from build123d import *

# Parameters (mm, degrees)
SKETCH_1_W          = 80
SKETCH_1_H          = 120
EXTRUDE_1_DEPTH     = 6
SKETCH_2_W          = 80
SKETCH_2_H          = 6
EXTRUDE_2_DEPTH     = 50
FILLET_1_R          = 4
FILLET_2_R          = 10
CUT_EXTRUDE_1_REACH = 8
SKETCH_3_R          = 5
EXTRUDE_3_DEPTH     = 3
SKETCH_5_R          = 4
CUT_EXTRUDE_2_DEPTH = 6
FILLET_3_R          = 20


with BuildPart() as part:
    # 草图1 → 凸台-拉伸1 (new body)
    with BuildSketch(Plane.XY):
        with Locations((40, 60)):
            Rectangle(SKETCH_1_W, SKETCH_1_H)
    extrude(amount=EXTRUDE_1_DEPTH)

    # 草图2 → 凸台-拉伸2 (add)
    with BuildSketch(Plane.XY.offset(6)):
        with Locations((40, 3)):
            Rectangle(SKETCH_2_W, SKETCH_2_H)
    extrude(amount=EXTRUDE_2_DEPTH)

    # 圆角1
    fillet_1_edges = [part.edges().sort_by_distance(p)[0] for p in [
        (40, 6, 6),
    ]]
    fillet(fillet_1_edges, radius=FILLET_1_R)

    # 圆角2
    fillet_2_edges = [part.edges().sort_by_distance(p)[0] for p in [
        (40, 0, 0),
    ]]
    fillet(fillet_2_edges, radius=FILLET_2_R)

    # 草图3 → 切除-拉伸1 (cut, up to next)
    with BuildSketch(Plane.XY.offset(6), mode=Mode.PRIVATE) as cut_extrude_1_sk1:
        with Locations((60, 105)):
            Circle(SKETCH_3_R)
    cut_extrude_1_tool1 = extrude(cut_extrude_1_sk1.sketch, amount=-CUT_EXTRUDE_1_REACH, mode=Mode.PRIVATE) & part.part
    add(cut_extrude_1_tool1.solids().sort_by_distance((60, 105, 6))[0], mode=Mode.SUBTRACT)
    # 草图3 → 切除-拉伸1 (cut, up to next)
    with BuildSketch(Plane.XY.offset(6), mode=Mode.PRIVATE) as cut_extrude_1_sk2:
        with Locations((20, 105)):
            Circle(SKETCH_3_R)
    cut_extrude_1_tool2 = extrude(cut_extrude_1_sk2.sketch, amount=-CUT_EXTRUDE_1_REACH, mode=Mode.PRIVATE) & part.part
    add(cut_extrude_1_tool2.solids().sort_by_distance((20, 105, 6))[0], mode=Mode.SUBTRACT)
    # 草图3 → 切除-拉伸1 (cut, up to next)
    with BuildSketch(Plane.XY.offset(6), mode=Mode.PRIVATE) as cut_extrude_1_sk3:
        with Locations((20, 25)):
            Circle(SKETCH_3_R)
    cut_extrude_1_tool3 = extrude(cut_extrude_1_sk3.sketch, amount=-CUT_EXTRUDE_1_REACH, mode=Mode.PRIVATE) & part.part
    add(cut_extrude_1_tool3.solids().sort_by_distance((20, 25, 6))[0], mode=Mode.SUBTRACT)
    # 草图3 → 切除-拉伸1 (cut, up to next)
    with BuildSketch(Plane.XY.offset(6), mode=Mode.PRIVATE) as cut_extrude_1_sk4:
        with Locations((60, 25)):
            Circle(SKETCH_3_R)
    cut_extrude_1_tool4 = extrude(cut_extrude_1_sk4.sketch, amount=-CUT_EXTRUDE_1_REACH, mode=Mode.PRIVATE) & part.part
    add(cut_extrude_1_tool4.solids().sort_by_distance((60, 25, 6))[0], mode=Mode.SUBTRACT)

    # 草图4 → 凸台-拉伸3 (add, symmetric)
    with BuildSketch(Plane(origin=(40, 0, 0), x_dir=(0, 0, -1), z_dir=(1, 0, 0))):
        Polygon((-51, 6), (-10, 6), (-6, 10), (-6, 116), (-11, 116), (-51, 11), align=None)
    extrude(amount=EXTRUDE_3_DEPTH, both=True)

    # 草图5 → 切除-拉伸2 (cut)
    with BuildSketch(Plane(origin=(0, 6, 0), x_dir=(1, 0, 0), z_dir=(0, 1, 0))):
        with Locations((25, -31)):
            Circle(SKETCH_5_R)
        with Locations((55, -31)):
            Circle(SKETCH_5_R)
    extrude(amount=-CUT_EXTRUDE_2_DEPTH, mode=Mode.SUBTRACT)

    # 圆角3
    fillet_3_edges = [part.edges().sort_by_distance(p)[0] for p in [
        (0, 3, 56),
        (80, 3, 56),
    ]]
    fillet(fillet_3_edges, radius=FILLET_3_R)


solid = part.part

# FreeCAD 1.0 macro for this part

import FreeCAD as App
import Part
import Sketcher
from FreeCAD import Vector
Q = App.Units.Quantity


def edges_at(feature, points):
    """Names of the edges that pass closest to the given points."""
    edges = feature.Shape.Edges
    near = lambda p: min(range(len(edges)), key=lambda i: edges[i].distToShape(Part.Vertex(*p))[0])
    return sorted({f"Edge{near(p) + 1}" for p in points})

doc = App.newDocument("Part")
body = doc.addObject("PartDesign::Body", "Body")

sketch1 = doc.addObject("Sketcher::SketchObject", "Sketch")
body.addObject(sketch1)
sketch1.AttachmentSupport = (doc.XY_Plane, [""])
sketch1.MapMode = "FlatFace"
sketch1.addGeometry(Part.LineSegment(Vector(0, 120, 0), Vector(0, 0, 0)), False)
sketch1.addGeometry(Part.LineSegment(Vector(0, 0, 0), Vector(80, 0, 0)), False)
sketch1.addGeometry(Part.LineSegment(Vector(80, 0, 0), Vector(80, 120, 0)), False)
sketch1.addGeometry(Part.LineSegment(Vector(80, 120, 0), Vector(0, 120, 0)), False)
sketch1.addConstraint(Sketcher.Constraint("Coincident", 0, 2, 1, 1))
sketch1.addConstraint(Sketcher.Constraint("Coincident", 1, 2, 2, 1))
sketch1.addConstraint(Sketcher.Constraint("Coincident", 2, 2, 3, 1))
sketch1.addConstraint(Sketcher.Constraint("Coincident", 3, 2, 0, 1))
sketch1.addConstraint(Sketcher.Constraint("Vertical", 0))
sketch1.addConstraint(Sketcher.Constraint("Horizontal", 1))
sketch1.addConstraint(Sketcher.Constraint("Vertical", 2))
sketch1.addConstraint(Sketcher.Constraint("Horizontal", 3))
sketch1.addConstraint(Sketcher.Constraint("Coincident", 0, 2, -1, 1))
sketch1.addConstraint(Sketcher.Constraint("DistanceX", 1, 1, 1, 2, Q("80 mm")))
sketch1.addConstraint(Sketcher.Constraint("DistanceY", 0, 2, 0, 1, Q("120 mm")))
pad1 = doc.addObject("PartDesign::Pad", "Pad")
body.addObject(pad1)
pad1.Profile = sketch1
pad1.Length = 6

sketch2 = doc.addObject("Sketcher::SketchObject", "Sketch001")
body.addObject(sketch2)
sketch2.AttachmentSupport = (doc.XY_Plane, [""])
sketch2.MapMode = "FlatFace"
sketch2.AttachmentOffset = App.Placement(Vector(0, 0, 6), App.Rotation())
sketch2.addGeometry(Part.LineSegment(Vector(0, 6, 0), Vector(0, 0, 0)), False)
sketch2.addGeometry(Part.LineSegment(Vector(0, 0, 0), Vector(80, 0, 0)), False)
sketch2.addGeometry(Part.LineSegment(Vector(80, 0, 0), Vector(80, 6, 0)), False)
sketch2.addGeometry(Part.LineSegment(Vector(80, 6, 0), Vector(0, 6, 0)), False)
sketch2.addConstraint(Sketcher.Constraint("Coincident", 0, 2, 1, 1))
sketch2.addConstraint(Sketcher.Constraint("Coincident", 1, 2, 2, 1))
sketch2.addConstraint(Sketcher.Constraint("Coincident", 2, 2, 3, 1))
sketch2.addConstraint(Sketcher.Constraint("Coincident", 3, 2, 0, 1))
sketch2.addConstraint(Sketcher.Constraint("Vertical", 0))
sketch2.addConstraint(Sketcher.Constraint("Horizontal", 1))
sketch2.addConstraint(Sketcher.Constraint("Vertical", 2))
sketch2.addConstraint(Sketcher.Constraint("Horizontal", 3))
sketch2.addConstraint(Sketcher.Constraint("Coincident", 0, 2, -1, 1))
sketch2.addConstraint(Sketcher.Constraint("DistanceX", 1, 1, 1, 2, Q("80 mm")))
sketch2.addConstraint(Sketcher.Constraint("DistanceY", 0, 2, 0, 1, Q("6 mm")))
pad2 = doc.addObject("PartDesign::Pad", "Pad001")
body.addObject(pad2)
pad2.Profile = sketch2
pad2.Length = 50
doc.recompute()

fillet = doc.addObject("PartDesign::Fillet", "Fillet")
body.addObject(fillet)
fillet.Base = (pad2, edges_at(pad2, [(40, 6, 6)]))
fillet.Radius = 4
doc.recompute()

fillet2 = doc.addObject("PartDesign::Fillet", "Fillet001")
body.addObject(fillet2)
fillet2.Base = (fillet, edges_at(fillet, [(40, 0, 0)]))
fillet2.Radius = 10

sketch3 = doc.addObject("Sketcher::SketchObject", "Sketch002")
body.addObject(sketch3)
sketch3.AttachmentSupport = (doc.XY_Plane, [""])
sketch3.MapMode = "FlatFace"
sketch3.AttachmentOffset = App.Placement(Vector(0, 0, 6), App.Rotation())
sketch3.addGeometry(Part.Circle(Vector(60, 105, 0), Vector(0, 0, 1), 5), False)
sketch3.addConstraint(Sketcher.Constraint("Diameter", 0, Q("10 mm")))
sketch3.addConstraint(Sketcher.Constraint("DistanceX", -1, 1, 0, 3, Q("60 mm")))
sketch3.addConstraint(Sketcher.Constraint("DistanceY", -1, 1, 0, 3, Q("105 mm")))
pocket1 = doc.addObject("PartDesign::Pocket", "Pocket")
body.addObject(pocket1)
pocket1.Profile = sketch3
pocket1.Type = "UpToFirst"

sketch4 = doc.addObject("Sketcher::SketchObject", "Sketch003")
body.addObject(sketch4)
sketch4.AttachmentSupport = (doc.XY_Plane, [""])
sketch4.MapMode = "FlatFace"
sketch4.AttachmentOffset = App.Placement(Vector(0, 0, 6), App.Rotation())
sketch4.addGeometry(Part.Circle(Vector(20, 105, 0), Vector(0, 0, 1), 5), False)
sketch4.addConstraint(Sketcher.Constraint("Diameter", 0, Q("10 mm")))
sketch4.addConstraint(Sketcher.Constraint("DistanceX", -1, 1, 0, 3, Q("20 mm")))
sketch4.addConstraint(Sketcher.Constraint("DistanceY", -1, 1, 0, 3, Q("105 mm")))
pocket2 = doc.addObject("PartDesign::Pocket", "Pocket001")
body.addObject(pocket2)
pocket2.Profile = sketch4
pocket2.Type = "UpToFirst"

sketch5 = doc.addObject("Sketcher::SketchObject", "Sketch004")
body.addObject(sketch5)
sketch5.AttachmentSupport = (doc.XY_Plane, [""])
sketch5.MapMode = "FlatFace"
sketch5.AttachmentOffset = App.Placement(Vector(0, 0, 6), App.Rotation())
sketch5.addGeometry(Part.Circle(Vector(20, 25, 0), Vector(0, 0, 1), 5), False)
sketch5.addConstraint(Sketcher.Constraint("Diameter", 0, Q("10 mm")))
sketch5.addConstraint(Sketcher.Constraint("DistanceX", -1, 1, 0, 3, Q("20 mm")))
sketch5.addConstraint(Sketcher.Constraint("DistanceY", -1, 1, 0, 3, Q("25 mm")))
pocket3 = doc.addObject("PartDesign::Pocket", "Pocket002")
body.addObject(pocket3)
pocket3.Profile = sketch5
pocket3.Type = "UpToFirst"

sketch6 = doc.addObject("Sketcher::SketchObject", "Sketch005")
body.addObject(sketch6)
sketch6.AttachmentSupport = (doc.XY_Plane, [""])
sketch6.MapMode = "FlatFace"
sketch6.AttachmentOffset = App.Placement(Vector(0, 0, 6), App.Rotation())
sketch6.addGeometry(Part.Circle(Vector(60, 25, 0), Vector(0, 0, 1), 5), False)
sketch6.addConstraint(Sketcher.Constraint("Diameter", 0, Q("10 mm")))
sketch6.addConstraint(Sketcher.Constraint("DistanceX", -1, 1, 0, 3, Q("60 mm")))
sketch6.addConstraint(Sketcher.Constraint("DistanceY", -1, 1, 0, 3, Q("25 mm")))
pocket4 = doc.addObject("PartDesign::Pocket", "Pocket003")
body.addObject(pocket4)
pocket4.Profile = sketch6
pocket4.Type = "UpToFirst"

sketch7 = doc.addObject("Sketcher::SketchObject", "Sketch006")
body.addObject(sketch7)
sketch7.AttachmentSupport = (doc.YZ_Plane, [""])
sketch7.MapMode = "FlatFace"
sketch7.AttachmentOffset = App.Placement(Vector(0, 0, 40), App.Rotation())
sketch7.addGeometry(Part.LineSegment(Vector(6, 51, 0), Vector(6, 10, 0)), False)
sketch7.addGeometry(Part.LineSegment(Vector(6, 10, 0), Vector(10, 6, 0)), False)
sketch7.addGeometry(Part.LineSegment(Vector(10, 6, 0), Vector(116, 6, 0)), False)
sketch7.addGeometry(Part.LineSegment(Vector(116, 6, 0), Vector(116, 11, 0)), False)
sketch7.addGeometry(Part.LineSegment(Vector(116, 11, 0), Vector(11, 51, 0)), False)
sketch7.addGeometry(Part.LineSegment(Vector(11, 51, 0), Vector(6, 51, 0)), False)
sketch7.addConstraint(Sketcher.Constraint("Coincident", 0, 2, 1, 1))
sketch7.addConstraint(Sketcher.Constraint("Coincident", 1, 2, 2, 1))
sketch7.addConstraint(Sketcher.Constraint("Coincident", 2, 2, 3, 1))
sketch7.addConstraint(Sketcher.Constraint("Coincident", 3, 2, 4, 1))
sketch7.addConstraint(Sketcher.Constraint("Coincident", 4, 2, 5, 1))
sketch7.addConstraint(Sketcher.Constraint("Coincident", 5, 2, 0, 1))
sketch7.addConstraint(Sketcher.Constraint("Vertical", 0))
sketch7.addConstraint(Sketcher.Constraint("Horizontal", 2))
sketch7.addConstraint(Sketcher.Constraint("Vertical", 3))
sketch7.addConstraint(Sketcher.Constraint("Horizontal", 5))
sketch7.addConstraint(Sketcher.Constraint("Equal", 5, 3))
sketch7.addConstraint(Sketcher.Constraint("DistanceX", 2, 1, 2, 2, Q("106 mm")))
sketch7.addConstraint(Sketcher.Constraint("DistanceX", 5, 2, 5, 1, Q("5 mm")))
sketch7.addConstraint(Sketcher.Constraint("DistanceY", 0, 2, 0, 1, Q("41 mm")))
sketch7.addConstraint(Sketcher.Constraint("Angle", 1, Q("-45 deg")))
sketch7.addConstraint(Sketcher.Constraint("DistanceX", -1, 1, 0, 2, Q("6 mm")))
sketch7.addConstraint(Sketcher.Constraint("DistanceY", -1, 1, 0, 2, Q("10 mm")))
sketch7.addConstraint(Sketcher.Constraint("DistanceX", -1, 1, 1, 2, Q("10 mm")))
pad3 = doc.addObject("PartDesign::Pad", "Pad002")
body.addObject(pad3)
pad3.Profile = sketch7
pad3.Length = 6
pad3.Midplane = True

sketch8 = doc.addObject("Sketcher::SketchObject", "Sketch007")
body.addObject(sketch8)
sketch8.AttachmentSupport = (doc.XZ_Plane, [""])
sketch8.MapMode = "FlatFace"
sketch8.AttachmentOffset = App.Placement(Vector(0, 0, -6), App.Rotation())
sketch8.addGeometry(Part.Circle(Vector(25, 31, 0), Vector(0, 0, 1), 4), False)
sketch8.addGeometry(Part.Circle(Vector(55, 31, 0), Vector(0, 0, 1), 4), False)
sketch8.addConstraint(Sketcher.Constraint("Equal", 0, 1))
sketch8.addConstraint(Sketcher.Constraint("Horizontal", 0, 3, 1, 3))
sketch8.addConstraint(Sketcher.Constraint("Diameter", 0, Q("8 mm")))
sketch8.addConstraint(Sketcher.Constraint("DistanceX", -1, 1, 0, 3, Q("25 mm")))
sketch8.addConstraint(Sketcher.Constraint("DistanceY", -1, 1, 0, 3, Q("31 mm")))
sketch8.addConstraint(Sketcher.Constraint("DistanceX", -1, 1, 1, 3, Q("55 mm")))
pocket5 = doc.addObject("PartDesign::Pocket", "Pocket004")
body.addObject(pocket5)
pocket5.Profile = sketch8
pocket5.Length = 6
pocket5.Reversed = True
doc.recompute()

fillet3 = doc.addObject("PartDesign::Fillet", "Fillet002")
body.addObject(fillet3)
fillet3.Base = (pocket5, edges_at(pocket5, [(0, 3, 56), (80, 3, 56)]))
fillet3.Radius = 20

doc.recompute()
